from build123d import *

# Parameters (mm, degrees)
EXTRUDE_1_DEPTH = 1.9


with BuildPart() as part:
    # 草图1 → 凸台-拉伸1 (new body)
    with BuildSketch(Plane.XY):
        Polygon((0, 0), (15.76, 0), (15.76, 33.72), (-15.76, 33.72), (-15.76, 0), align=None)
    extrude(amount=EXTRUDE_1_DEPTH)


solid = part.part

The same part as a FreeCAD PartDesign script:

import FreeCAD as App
import Part
import Sketcher
Q = App.Units.Quantity


def add_polygon(sketch, points):
    """Adds a closed chain of lines whose ends are joined by coincident constraints."""
    first, n = sketch.GeometryCount, len(points)
    for a, b in zip(points, points[1:] + points[:1]):
        sketch.addGeometry(Part.LineSegment(App.Vector(*a, 0), App.Vector(*b, 0)), False)
    for i in range(n):
        sketch.addConstraint(Sketcher.Constraint("Coincident", first + i, 2, first + (i + 1) % n, 1))

doc = App.newDocument("Part")
body = doc.addObject("PartDesign::Body", "Body")

sketch1 = body.newObject("Sketcher::SketchObject", "Sketch")
sketch1.AttachmentSupport = (doc.getObject("XY_Plane"), [""])
sketch1.MapMode = "FlatFace"
add_polygon(sketch1, [(16, 0), (16, 34), (-16, 34), (-16, 0)])
sketch1.addConstraint([
    Sketcher.Constraint("Vertical", 0),
    Sketcher.Constraint("Horizontal", 1),
    Sketcher.Constraint("Vertical", 2),
    Sketcher.Constraint("Horizontal", 3),
    Sketcher.Constraint("Symmetric", 2, 2, 3, 2, -1, 1),
    Sketcher.Constraint("DistanceX", 1, 2, 1, 1, Q("31.52 mm")),
    Sketcher.Constraint("DistanceY", 0, 1, 0, 2, Q("33.72 mm")),
])
pad1 = body.newObject("PartDesign::Pad", "Pad")
pad1.Profile = sketch1
pad1.Length = 1.9

doc.recompute()
